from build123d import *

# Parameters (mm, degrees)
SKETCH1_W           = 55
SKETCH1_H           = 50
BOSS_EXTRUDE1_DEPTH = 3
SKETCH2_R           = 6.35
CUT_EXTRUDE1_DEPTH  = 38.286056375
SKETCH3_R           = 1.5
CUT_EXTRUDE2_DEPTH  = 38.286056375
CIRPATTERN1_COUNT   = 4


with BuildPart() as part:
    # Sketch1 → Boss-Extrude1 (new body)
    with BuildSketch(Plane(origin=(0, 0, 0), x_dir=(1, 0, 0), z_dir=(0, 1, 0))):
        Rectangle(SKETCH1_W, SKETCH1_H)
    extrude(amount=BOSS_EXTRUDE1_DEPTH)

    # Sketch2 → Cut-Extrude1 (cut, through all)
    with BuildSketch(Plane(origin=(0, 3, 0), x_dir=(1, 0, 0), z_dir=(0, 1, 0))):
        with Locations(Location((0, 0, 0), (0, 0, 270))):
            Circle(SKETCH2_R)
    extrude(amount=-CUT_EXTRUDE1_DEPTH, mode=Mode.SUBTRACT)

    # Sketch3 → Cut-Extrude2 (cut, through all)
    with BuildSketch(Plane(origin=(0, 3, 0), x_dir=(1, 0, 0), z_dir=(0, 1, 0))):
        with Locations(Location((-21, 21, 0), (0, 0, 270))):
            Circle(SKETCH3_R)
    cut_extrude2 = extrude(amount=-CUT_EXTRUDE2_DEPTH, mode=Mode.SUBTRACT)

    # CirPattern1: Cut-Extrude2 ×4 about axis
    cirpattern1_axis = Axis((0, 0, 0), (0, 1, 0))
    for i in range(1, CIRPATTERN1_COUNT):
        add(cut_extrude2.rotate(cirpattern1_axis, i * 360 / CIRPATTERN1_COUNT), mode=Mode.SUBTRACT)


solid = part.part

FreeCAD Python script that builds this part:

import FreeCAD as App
import Part
import Sketcher
Q = App.Units.Quantity


def add_polygon(sketch, points):
    """Adds a closed chain of lines whose ends are joined by coincident constraints."""
    first, n = sketch.GeometryCount, len(points)
    for a, b in zip(points, points[1:] + points[:1]):
        sketch.addGeometry(Part.LineSegment(App.Vector(*a, 0), App.Vector(*b, 0)), False)
    for i in range(n):
        sketch.addConstraint(Sketcher.Constraint("Coincident", first + i, 2, first + (i + 1) % n, 1))

doc = App.newDocument("Part")
body = doc.addObject("PartDesign::Body", "Body")

# Sketch on XZ plane
sketch1 = body.newObject("Sketcher::SketchObject", "Sketch")
sketch1.AttachmentSupport = (doc.getObject("XZ_Plane"), [""])
sketch1.MapMode = "FlatFace"
add_polygon(sketch1, [(-28, -25), (-28, 25), (28, 25), (28, -25)])  # lines 0-3
sketch1.addConstraint(Sketcher.Constraint("Vertical", 0))
sketch1.addConstraint(Sketcher.Constraint("Horizontal", 1))
sketch1.addConstraint(Sketcher.Constraint("Vertical", 2))
sketch1.addConstraint(Sketcher.Constraint("Horizontal", 3))
sketch1.addConstraint(Sketcher.Constraint("Symmetric", 0, 2, 2, 2, -1, 1))
sketch1.addConstraint(Sketcher.Constraint("DistanceX", 1, 1, 1, 2, Q("55 mm")))
sketch1.addConstraint(Sketcher.Constraint("DistanceY", 0, 1, 0, 2, Q("50 mm")))
pad1 = body.newObject("PartDesign::Pad", "Pad")
pad1.Profile = sketch1
pad1.Length = 3
pad1.Reversed = True

# Sketch on XZ plane
sketch2 = body.newObject("Sketcher::SketchObject", "Sketch001")
sketch2.AttachmentSupport = (doc.getObject("XZ_Plane"), [""])
sketch2.MapMode = "FlatFace"
sketch2.AttachmentOffset = App.Placement(App.Vector(0, 0, -3), App.Rotation())
sketch2.addGeometry(Part.Circle(App.Vector(0, 0, 0), App.Vector(0, 0, 1), 6), False)
sketch2.addConstraint(Sketcher.Constraint("Coincident", 0, 3, -1, 1))
sketch2.addConstraint(Sketcher.Constraint("Diameter", 0, Q("12.7 mm")))
pocket1 = body.newObject("PartDesign::Pocket", "Pocket")
pocket1.Profile = sketch2
pocket1.Type = "ThroughAll"
pocket1.Reversed = True

# Sketch on XZ plane
sketch3 = body.newObject("Sketcher::SketchObject", "Sketch002")
sketch3.AttachmentSupport = (doc.getObject("XZ_Plane"), [""])
sketch3.MapMode = "FlatFace"
sketch3.AttachmentOffset = App.Placement(App.Vector(0, 0, -3), App.Rotation())
sketch3.addGeometry(Part.Circle(App.Vector(-21, -21, 0), App.Vector(0, 0, 1), 1.5), False)
sketch3.addConstraint(Sketcher.Constraint("Diameter", 0, Q("3 mm")))
sketch3.addConstraint(Sketcher.Constraint("DistanceX", 0, 3, -1, 1, Q("21 mm")))
sketch3.addConstraint(Sketcher.Constraint("DistanceY", 0, 3, -1, 1, Q("21 mm")))
pocket2 = body.newObject("PartDesign::Pocket", "Pocket001")
pocket2.Profile = sketch3
pocket2.Type = "ThroughAll"
pocket2.Reversed = True
doc.recompute()

polarpattern = body.newObject("PartDesign::PolarPattern", "PolarPattern")
polarpattern.Originals = [pocket2]
polarpattern.Axis = (doc.getObject("Y_Axis"), [""])
polarpattern.Angle = 360
polarpattern.Occurrences = 4
body.Tip = polarpattern

doc.recompute()
